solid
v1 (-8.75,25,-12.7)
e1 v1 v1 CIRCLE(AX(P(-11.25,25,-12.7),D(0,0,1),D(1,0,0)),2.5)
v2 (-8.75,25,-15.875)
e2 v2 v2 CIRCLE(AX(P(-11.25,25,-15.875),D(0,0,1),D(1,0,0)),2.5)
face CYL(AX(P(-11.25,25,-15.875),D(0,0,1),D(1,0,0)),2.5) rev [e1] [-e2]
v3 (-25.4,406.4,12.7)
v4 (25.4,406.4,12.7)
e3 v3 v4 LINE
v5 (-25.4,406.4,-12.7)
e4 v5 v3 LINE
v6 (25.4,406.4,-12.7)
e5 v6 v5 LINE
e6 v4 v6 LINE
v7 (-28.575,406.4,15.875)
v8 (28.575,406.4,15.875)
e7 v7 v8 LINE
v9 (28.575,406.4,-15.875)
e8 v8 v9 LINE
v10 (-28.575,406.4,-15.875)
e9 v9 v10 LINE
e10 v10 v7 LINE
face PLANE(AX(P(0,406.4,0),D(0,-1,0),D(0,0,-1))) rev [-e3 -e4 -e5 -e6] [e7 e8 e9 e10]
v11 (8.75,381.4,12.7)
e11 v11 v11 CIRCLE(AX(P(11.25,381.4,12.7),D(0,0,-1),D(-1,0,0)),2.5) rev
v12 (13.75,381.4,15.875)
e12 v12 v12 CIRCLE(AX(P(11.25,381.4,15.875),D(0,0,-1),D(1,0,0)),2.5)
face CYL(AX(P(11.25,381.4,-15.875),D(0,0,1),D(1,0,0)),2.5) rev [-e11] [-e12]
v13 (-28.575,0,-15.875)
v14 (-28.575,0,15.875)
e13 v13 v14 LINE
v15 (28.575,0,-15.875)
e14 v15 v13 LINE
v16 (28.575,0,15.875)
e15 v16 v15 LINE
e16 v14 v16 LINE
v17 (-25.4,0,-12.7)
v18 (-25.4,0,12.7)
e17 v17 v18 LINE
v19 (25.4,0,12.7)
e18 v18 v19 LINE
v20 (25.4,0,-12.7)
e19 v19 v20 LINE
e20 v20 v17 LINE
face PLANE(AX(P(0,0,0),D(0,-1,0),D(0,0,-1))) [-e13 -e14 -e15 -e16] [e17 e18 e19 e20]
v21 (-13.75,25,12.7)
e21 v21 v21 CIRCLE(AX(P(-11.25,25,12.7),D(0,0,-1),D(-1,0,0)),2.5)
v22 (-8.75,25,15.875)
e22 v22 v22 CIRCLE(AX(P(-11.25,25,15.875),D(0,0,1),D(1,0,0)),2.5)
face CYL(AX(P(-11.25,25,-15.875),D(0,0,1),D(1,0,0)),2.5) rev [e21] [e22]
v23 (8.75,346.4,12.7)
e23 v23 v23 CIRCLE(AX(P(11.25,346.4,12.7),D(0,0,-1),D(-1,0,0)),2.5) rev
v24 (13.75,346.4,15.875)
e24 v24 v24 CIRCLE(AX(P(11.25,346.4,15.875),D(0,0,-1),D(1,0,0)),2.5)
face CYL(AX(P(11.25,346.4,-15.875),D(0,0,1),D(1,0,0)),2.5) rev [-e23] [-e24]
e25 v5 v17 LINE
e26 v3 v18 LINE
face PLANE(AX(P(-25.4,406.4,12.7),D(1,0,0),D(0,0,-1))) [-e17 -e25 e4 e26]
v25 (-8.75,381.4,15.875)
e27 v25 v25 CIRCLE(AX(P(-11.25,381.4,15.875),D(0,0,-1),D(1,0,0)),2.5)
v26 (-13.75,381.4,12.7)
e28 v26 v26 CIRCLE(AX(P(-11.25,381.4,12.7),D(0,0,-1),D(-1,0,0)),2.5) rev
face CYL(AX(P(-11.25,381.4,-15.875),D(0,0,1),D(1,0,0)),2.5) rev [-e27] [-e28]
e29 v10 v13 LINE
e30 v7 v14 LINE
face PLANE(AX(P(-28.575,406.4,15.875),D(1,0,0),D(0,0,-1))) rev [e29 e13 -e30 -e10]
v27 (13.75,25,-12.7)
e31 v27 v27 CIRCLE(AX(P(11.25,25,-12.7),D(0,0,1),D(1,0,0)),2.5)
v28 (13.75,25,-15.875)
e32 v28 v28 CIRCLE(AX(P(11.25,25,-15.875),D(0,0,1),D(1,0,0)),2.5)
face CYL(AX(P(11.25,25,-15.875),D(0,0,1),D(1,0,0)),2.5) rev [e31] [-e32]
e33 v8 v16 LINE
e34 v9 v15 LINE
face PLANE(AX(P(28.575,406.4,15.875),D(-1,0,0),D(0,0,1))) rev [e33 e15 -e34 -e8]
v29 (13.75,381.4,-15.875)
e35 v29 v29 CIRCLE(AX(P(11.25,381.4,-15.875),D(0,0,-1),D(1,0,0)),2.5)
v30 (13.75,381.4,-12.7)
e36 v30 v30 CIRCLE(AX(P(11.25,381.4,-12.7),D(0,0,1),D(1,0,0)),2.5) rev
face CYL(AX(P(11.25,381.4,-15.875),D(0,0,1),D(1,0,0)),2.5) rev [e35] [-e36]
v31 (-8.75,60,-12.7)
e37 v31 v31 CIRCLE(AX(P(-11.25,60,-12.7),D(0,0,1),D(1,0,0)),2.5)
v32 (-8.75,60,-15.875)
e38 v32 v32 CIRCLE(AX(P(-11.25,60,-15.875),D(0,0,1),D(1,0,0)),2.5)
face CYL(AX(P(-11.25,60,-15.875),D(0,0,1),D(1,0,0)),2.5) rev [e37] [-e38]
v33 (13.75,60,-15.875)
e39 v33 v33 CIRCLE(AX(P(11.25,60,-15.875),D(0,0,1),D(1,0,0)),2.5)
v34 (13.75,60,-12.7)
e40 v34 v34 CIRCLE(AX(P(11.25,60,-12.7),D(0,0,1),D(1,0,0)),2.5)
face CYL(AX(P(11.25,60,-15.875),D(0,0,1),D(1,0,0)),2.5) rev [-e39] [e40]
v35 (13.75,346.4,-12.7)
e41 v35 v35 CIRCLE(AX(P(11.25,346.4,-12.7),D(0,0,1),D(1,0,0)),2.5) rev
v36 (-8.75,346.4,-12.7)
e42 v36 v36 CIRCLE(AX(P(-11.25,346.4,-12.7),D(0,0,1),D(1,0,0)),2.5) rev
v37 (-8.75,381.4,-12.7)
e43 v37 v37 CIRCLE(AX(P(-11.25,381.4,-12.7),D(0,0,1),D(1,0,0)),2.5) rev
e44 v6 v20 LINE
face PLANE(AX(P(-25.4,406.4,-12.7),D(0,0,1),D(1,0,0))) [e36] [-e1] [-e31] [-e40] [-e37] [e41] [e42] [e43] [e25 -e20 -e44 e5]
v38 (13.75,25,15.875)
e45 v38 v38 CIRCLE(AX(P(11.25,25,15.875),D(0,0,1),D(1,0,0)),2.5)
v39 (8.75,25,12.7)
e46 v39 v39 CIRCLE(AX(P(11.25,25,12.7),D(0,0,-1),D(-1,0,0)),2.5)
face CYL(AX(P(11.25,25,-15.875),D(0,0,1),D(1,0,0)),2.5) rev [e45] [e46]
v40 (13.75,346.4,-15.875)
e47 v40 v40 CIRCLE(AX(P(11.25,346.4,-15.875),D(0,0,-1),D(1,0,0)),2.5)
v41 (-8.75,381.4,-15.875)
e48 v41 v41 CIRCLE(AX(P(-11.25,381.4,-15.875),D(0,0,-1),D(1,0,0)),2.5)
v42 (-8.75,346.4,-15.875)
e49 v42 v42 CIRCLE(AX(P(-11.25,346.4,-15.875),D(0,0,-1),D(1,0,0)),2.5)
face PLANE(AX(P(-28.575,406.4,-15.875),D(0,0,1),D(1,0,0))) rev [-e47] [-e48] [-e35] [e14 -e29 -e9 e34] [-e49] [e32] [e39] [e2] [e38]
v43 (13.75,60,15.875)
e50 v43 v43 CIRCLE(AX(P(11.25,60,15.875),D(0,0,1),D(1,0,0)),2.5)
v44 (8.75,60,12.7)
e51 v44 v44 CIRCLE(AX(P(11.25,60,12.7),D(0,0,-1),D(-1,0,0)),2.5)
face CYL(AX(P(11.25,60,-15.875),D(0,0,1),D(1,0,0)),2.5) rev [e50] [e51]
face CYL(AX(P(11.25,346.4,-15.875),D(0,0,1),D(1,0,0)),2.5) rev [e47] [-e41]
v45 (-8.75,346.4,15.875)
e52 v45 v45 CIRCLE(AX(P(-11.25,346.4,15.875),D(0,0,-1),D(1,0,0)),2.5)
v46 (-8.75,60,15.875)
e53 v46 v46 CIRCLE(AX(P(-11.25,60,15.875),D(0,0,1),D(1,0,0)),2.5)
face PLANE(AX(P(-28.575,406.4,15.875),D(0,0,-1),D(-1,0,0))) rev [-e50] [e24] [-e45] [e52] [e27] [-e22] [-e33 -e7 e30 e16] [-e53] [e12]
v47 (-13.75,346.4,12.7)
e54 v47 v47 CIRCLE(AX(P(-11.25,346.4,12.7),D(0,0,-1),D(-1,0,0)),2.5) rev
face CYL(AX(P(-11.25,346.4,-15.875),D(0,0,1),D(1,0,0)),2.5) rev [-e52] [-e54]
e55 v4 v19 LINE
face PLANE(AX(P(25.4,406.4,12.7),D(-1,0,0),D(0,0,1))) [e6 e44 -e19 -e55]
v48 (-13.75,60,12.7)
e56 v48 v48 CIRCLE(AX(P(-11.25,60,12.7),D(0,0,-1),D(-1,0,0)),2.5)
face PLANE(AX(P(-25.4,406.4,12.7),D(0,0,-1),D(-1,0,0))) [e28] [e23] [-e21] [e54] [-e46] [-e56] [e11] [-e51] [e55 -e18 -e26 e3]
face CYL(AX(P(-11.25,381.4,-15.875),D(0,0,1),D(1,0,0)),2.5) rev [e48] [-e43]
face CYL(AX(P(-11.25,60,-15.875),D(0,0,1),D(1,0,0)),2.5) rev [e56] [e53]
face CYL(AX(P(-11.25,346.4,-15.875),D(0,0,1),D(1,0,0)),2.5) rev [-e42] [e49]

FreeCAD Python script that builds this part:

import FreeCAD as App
import Part
import Sketcher
Q = App.Units.Quantity

doc = App.newDocument("Part")
body = doc.addObject("PartDesign::Body", "Body")

sketch1 = body.newObject("Sketcher::SketchObject", "Sketch")
sketch1.AttachmentSupport = (doc.getObject("XZ_Plane"), [""])
sketch1.MapMode = "FlatFace"
sketch1.addGeometry(Part.LineSegment(App.Vector(-28.575, -15.875, 0), App.Vector(-28.575, 15.875, 0)), False)
sketch1.addGeometry(Part.LineSegment(App.Vector(-28.575, 15.875, 0), App.Vector(28.575, 15.875, 0)), False)
sketch1.addGeometry(Part.LineSegment(App.Vector(28.575, 15.875, 0), App.Vector(28.575, -15.875, 0)), False)
sketch1.addGeometry(Part.LineSegment(App.Vector(28.575, -15.875, 0), App.Vector(-28.575, -15.875, 0)), False)
sketch1.addGeometry(Part.LineSegment(App.Vector(25.4, 12.7, 0), App.Vector(-25.4, 12.7, 0)), False)
sketch1.addGeometry(Part.LineSegment(App.Vector(-25.4, 12.7, 0), App.Vector(-25.4, -12.7, 0)), False)
sketch1.addGeometry(Part.LineSegment(App.Vector(-25.4, -12.7, 0), App.Vector(25.4, -12.7, 0)), False)
sketch1.addGeometry(Part.LineSegment(App.Vector(25.4, -12.7, 0), App.Vector(25.4, 12.7, 0)), False)
sketch1.addConstraint(Sketcher.Constraint("Coincident", 0, 2, 1, 1))
sketch1.addConstraint(Sketcher.Constraint("Coincident", 1, 2, 2, 1))
sketch1.addConstraint(Sketcher.Constraint("Coincident", 2, 2, 3, 1))
sketch1.addConstraint(Sketcher.Constraint("Coincident", 3, 2, 0, 1))
sketch1.addConstraint(Sketcher.Constraint("Coincident", 4, 2, 5, 1))
sketch1.addConstraint(Sketcher.Constraint("Coincident", 5, 2, 6, 1))
sketch1.addConstraint(Sketcher.Constraint("Coincident", 6, 2, 7, 1))
sketch1.addConstraint(Sketcher.Constraint("Coincident", 7, 2, 4, 1))
sketch1.addConstraint(Sketcher.Constraint("Vertical", 0))
sketch1.addConstraint(Sketcher.Constraint("Horizontal", 1))
sketch1.addConstraint(Sketcher.Constraint("Vertical", 2))
sketch1.addConstraint(Sketcher.Constraint("Horizontal", 3))
sketch1.addConstraint(Sketcher.Constraint("Horizontal", 4))
sketch1.addConstraint(Sketcher.Constraint("Vertical", 5))
sketch1.addConstraint(Sketcher.Constraint("Horizontal", 6))
sketch1.addConstraint(Sketcher.Constraint("Vertical", 7))
sketch1.addConstraint(Sketcher.Constraint("Symmetric", 0, 2, 2, 2, -1, 1))
sketch1.addConstraint(Sketcher.Constraint("Symmetric", 4, 2, 6, 2, -1, 1))
sketch1.addConstraint(Sketcher.Constraint("DistanceX", 4, 2, 4, 1, Q("2 in")))
sketch1.addConstraint(Sketcher.Constraint("DistanceY", 5, 2, 5, 1, Q("1 in")))
sketch1.addConstraint(Sketcher.Constraint("DistanceX", 1, 1, 1, 2, Q("2.25 in")))
sketch1.addConstraint(Sketcher.Constraint("DistanceY", 0, 1, 0, 2, Q("1.25 in")))
pad1 = body.newObject("PartDesign::Pad", "Pad")
pad1.Profile = sketch1
pad1.Length = Q("16 in")
pad1.Reversed = True

sketch2 = body.newObject("Sketcher::SketchObject", "Sketch001")
sketch2.AttachmentSupport = (doc.getObject("XY_Plane"), [""])
sketch2.MapMode = "FlatFace"
sketch2.AttachmentOffset = App.Placement(App.Vector(0, 0, 0.625 * 25.4), App.Rotation())
sketch2.addGeometry(Part.Circle(App.Vector(-11.25, 60, 0), App.Vector(0, 0, 1), 2.5), False)
sketch2.addGeometry(Part.Circle(App.Vector(-11.25, 25, 0), App.Vector(0, 0, 1), 2.5), False)
sketch2.addGeometry(Part.Circle(App.Vector(11.25, 25, 0), App.Vector(0, 0, 1), 2.5), False)
sketch2.addGeometry(Part.Circle(App.Vector(11.25, 60, 0), App.Vector(0, 0, 1), 2.5), False)
sketch2.addConstraint(Sketcher.Constraint("Equal", 0, 1))
sketch2.addConstraint(Sketcher.Constraint("Equal", 1, 2))
sketch2.addConstraint(Sketcher.Constraint("Equal", 2, 3))
sketch2.addConstraint(Sketcher.Constraint("Symmetric", 1, 3, 2, 3, -2))
sketch2.addConstraint(Sketcher.Constraint("Symmetric", 0, 3, 3, 3, -2))
sketch2.addConstraint(Sketcher.Constraint("Vertical", 0, 3, 1, 3))
sketch2.addConstraint(Sketcher.Constraint("Diameter", 0, 5.0))
sketch2.addConstraint(Sketcher.Constraint("DistanceX", 0, 3, -1, 1, 11.25))
sketch2.addConstraint(Sketcher.Constraint("DistanceY", -1, 1, 0, 3, 60.0))
sketch2.addConstraint(Sketcher.Constraint("DistanceY", -1, 1, 1, 3, 25.0))
pocket1 = body.newObject("PartDesign::Pocket", "Pocket")
pocket1.Profile = sketch2
pocket1.Type = "ThroughAll"
doc.recompute()

datumplane = body.newObject("PartDesign::Plane", "DatumPlane")
datumplane.AttachmentSupport = (doc.getObject("XZ_Plane"), [""])
datumplane.MapMode = "FlatFace"
datumplane.AttachmentOffset = App.Placement(App.Vector(0, 0, -8 * 25.4), App.Rotation())
mirrored = body.newObject("PartDesign::Mirrored", "Mirrored")
mirrored.Originals = [pocket1]
mirrored.MirrorPlane = (datumplane, [""])
body.Tip = mirrored

doc.recompute()
